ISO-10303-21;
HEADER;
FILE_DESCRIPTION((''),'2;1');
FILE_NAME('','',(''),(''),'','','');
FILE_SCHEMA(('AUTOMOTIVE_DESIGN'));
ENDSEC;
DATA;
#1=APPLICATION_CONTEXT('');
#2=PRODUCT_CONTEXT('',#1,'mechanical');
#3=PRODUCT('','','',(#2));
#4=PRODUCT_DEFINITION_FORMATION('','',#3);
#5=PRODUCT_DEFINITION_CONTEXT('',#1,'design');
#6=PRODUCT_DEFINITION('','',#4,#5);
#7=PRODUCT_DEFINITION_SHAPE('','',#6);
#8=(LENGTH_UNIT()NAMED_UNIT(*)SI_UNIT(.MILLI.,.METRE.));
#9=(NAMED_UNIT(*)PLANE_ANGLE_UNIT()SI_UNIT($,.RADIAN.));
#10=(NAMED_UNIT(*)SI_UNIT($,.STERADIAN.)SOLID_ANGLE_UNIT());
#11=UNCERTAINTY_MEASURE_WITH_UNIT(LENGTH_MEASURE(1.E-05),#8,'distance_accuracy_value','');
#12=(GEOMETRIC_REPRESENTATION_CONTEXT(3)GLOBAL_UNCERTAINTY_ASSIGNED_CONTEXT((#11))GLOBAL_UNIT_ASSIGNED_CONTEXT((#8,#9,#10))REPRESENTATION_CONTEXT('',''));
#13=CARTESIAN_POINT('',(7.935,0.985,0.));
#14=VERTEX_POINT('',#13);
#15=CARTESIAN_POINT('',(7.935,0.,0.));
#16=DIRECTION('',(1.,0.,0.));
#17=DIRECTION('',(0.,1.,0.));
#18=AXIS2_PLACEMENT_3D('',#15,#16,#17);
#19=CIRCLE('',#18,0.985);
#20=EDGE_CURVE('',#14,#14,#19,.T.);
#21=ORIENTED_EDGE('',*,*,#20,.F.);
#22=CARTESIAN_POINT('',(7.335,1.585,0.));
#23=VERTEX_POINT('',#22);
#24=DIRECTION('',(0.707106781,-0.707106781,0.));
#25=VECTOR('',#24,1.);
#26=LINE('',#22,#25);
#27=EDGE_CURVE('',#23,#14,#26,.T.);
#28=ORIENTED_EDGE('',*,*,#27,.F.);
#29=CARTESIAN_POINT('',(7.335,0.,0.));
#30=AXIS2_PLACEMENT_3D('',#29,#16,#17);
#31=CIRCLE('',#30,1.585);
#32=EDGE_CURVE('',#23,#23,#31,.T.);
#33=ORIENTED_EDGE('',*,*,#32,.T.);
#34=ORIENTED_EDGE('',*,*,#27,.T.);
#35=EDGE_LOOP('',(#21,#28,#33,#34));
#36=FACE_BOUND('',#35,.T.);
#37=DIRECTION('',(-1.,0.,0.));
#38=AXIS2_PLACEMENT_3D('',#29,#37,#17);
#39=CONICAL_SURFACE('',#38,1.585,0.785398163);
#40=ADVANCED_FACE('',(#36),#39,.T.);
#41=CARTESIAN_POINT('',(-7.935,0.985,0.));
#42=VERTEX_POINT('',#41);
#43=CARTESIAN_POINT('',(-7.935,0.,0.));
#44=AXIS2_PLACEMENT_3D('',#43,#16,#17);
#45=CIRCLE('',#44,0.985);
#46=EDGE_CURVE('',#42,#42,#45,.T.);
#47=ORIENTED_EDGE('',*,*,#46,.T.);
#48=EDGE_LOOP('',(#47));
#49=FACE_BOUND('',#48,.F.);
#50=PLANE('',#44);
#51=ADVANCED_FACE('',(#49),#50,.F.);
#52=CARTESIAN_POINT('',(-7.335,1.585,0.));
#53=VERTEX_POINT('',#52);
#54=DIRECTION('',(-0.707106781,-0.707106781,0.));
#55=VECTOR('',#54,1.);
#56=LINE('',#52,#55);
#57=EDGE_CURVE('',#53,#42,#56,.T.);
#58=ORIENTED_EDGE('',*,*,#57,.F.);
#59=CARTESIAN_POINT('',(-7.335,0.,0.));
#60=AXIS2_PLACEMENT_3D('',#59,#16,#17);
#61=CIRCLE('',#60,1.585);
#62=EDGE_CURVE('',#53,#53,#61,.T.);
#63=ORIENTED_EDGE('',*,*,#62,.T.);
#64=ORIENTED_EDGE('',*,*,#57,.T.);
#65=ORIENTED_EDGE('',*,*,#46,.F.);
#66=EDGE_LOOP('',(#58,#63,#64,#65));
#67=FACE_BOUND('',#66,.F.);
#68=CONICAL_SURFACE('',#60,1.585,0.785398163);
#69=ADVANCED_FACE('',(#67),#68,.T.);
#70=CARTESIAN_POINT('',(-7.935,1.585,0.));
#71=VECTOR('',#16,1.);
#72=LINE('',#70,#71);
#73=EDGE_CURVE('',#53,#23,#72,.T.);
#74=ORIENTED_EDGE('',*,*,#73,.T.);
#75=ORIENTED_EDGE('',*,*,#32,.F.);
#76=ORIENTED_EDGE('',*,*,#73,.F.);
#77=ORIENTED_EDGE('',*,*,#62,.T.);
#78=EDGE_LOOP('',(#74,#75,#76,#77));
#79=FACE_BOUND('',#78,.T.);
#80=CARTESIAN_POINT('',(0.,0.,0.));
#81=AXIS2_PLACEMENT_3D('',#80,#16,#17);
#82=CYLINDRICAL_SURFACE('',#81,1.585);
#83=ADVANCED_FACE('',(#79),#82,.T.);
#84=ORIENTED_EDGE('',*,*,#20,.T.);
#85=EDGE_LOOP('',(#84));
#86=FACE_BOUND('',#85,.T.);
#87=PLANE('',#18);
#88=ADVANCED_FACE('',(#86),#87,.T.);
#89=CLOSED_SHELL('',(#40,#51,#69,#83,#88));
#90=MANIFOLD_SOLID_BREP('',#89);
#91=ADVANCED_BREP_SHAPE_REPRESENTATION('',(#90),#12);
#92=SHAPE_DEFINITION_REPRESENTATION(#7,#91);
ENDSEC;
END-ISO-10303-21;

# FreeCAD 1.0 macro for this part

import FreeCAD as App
import Part
import Sketcher
from FreeCAD import Vector

doc = App.newDocument("Part")
body = doc.addObject("PartDesign::Body", "Body")

sketch1 = body.newObject("Sketcher::SketchObject", "Sketch")
sketch1.AttachmentSupport = (doc.getObject("YZ_Plane"), [""])
sketch1.MapMode = "FlatFace"
sketch1.addGeometry(Part.Circle(Vector(0, 0, 0), Vector(0, 0, 1), 1.6), False)
sketch1.addConstraint([
    Sketcher.Constraint("Coincident", 0, 3, -1, 1),
    Sketcher.Constraint("Diameter", 0, 3.17),
])
pad1 = body.newObject("PartDesign::Pad", "Pad")
pad1.Profile = sketch1
pad1.Length = 15.87
pad1.Midplane = True
doc.recompute()

chamfer = body.newObject("PartDesign::Chamfer", "Chamfer")
chamfer.Base = (pad1, ["Edge1"])
chamfer.UseAllEdges = True
chamfer.Size = 0.6

doc.recompute()
